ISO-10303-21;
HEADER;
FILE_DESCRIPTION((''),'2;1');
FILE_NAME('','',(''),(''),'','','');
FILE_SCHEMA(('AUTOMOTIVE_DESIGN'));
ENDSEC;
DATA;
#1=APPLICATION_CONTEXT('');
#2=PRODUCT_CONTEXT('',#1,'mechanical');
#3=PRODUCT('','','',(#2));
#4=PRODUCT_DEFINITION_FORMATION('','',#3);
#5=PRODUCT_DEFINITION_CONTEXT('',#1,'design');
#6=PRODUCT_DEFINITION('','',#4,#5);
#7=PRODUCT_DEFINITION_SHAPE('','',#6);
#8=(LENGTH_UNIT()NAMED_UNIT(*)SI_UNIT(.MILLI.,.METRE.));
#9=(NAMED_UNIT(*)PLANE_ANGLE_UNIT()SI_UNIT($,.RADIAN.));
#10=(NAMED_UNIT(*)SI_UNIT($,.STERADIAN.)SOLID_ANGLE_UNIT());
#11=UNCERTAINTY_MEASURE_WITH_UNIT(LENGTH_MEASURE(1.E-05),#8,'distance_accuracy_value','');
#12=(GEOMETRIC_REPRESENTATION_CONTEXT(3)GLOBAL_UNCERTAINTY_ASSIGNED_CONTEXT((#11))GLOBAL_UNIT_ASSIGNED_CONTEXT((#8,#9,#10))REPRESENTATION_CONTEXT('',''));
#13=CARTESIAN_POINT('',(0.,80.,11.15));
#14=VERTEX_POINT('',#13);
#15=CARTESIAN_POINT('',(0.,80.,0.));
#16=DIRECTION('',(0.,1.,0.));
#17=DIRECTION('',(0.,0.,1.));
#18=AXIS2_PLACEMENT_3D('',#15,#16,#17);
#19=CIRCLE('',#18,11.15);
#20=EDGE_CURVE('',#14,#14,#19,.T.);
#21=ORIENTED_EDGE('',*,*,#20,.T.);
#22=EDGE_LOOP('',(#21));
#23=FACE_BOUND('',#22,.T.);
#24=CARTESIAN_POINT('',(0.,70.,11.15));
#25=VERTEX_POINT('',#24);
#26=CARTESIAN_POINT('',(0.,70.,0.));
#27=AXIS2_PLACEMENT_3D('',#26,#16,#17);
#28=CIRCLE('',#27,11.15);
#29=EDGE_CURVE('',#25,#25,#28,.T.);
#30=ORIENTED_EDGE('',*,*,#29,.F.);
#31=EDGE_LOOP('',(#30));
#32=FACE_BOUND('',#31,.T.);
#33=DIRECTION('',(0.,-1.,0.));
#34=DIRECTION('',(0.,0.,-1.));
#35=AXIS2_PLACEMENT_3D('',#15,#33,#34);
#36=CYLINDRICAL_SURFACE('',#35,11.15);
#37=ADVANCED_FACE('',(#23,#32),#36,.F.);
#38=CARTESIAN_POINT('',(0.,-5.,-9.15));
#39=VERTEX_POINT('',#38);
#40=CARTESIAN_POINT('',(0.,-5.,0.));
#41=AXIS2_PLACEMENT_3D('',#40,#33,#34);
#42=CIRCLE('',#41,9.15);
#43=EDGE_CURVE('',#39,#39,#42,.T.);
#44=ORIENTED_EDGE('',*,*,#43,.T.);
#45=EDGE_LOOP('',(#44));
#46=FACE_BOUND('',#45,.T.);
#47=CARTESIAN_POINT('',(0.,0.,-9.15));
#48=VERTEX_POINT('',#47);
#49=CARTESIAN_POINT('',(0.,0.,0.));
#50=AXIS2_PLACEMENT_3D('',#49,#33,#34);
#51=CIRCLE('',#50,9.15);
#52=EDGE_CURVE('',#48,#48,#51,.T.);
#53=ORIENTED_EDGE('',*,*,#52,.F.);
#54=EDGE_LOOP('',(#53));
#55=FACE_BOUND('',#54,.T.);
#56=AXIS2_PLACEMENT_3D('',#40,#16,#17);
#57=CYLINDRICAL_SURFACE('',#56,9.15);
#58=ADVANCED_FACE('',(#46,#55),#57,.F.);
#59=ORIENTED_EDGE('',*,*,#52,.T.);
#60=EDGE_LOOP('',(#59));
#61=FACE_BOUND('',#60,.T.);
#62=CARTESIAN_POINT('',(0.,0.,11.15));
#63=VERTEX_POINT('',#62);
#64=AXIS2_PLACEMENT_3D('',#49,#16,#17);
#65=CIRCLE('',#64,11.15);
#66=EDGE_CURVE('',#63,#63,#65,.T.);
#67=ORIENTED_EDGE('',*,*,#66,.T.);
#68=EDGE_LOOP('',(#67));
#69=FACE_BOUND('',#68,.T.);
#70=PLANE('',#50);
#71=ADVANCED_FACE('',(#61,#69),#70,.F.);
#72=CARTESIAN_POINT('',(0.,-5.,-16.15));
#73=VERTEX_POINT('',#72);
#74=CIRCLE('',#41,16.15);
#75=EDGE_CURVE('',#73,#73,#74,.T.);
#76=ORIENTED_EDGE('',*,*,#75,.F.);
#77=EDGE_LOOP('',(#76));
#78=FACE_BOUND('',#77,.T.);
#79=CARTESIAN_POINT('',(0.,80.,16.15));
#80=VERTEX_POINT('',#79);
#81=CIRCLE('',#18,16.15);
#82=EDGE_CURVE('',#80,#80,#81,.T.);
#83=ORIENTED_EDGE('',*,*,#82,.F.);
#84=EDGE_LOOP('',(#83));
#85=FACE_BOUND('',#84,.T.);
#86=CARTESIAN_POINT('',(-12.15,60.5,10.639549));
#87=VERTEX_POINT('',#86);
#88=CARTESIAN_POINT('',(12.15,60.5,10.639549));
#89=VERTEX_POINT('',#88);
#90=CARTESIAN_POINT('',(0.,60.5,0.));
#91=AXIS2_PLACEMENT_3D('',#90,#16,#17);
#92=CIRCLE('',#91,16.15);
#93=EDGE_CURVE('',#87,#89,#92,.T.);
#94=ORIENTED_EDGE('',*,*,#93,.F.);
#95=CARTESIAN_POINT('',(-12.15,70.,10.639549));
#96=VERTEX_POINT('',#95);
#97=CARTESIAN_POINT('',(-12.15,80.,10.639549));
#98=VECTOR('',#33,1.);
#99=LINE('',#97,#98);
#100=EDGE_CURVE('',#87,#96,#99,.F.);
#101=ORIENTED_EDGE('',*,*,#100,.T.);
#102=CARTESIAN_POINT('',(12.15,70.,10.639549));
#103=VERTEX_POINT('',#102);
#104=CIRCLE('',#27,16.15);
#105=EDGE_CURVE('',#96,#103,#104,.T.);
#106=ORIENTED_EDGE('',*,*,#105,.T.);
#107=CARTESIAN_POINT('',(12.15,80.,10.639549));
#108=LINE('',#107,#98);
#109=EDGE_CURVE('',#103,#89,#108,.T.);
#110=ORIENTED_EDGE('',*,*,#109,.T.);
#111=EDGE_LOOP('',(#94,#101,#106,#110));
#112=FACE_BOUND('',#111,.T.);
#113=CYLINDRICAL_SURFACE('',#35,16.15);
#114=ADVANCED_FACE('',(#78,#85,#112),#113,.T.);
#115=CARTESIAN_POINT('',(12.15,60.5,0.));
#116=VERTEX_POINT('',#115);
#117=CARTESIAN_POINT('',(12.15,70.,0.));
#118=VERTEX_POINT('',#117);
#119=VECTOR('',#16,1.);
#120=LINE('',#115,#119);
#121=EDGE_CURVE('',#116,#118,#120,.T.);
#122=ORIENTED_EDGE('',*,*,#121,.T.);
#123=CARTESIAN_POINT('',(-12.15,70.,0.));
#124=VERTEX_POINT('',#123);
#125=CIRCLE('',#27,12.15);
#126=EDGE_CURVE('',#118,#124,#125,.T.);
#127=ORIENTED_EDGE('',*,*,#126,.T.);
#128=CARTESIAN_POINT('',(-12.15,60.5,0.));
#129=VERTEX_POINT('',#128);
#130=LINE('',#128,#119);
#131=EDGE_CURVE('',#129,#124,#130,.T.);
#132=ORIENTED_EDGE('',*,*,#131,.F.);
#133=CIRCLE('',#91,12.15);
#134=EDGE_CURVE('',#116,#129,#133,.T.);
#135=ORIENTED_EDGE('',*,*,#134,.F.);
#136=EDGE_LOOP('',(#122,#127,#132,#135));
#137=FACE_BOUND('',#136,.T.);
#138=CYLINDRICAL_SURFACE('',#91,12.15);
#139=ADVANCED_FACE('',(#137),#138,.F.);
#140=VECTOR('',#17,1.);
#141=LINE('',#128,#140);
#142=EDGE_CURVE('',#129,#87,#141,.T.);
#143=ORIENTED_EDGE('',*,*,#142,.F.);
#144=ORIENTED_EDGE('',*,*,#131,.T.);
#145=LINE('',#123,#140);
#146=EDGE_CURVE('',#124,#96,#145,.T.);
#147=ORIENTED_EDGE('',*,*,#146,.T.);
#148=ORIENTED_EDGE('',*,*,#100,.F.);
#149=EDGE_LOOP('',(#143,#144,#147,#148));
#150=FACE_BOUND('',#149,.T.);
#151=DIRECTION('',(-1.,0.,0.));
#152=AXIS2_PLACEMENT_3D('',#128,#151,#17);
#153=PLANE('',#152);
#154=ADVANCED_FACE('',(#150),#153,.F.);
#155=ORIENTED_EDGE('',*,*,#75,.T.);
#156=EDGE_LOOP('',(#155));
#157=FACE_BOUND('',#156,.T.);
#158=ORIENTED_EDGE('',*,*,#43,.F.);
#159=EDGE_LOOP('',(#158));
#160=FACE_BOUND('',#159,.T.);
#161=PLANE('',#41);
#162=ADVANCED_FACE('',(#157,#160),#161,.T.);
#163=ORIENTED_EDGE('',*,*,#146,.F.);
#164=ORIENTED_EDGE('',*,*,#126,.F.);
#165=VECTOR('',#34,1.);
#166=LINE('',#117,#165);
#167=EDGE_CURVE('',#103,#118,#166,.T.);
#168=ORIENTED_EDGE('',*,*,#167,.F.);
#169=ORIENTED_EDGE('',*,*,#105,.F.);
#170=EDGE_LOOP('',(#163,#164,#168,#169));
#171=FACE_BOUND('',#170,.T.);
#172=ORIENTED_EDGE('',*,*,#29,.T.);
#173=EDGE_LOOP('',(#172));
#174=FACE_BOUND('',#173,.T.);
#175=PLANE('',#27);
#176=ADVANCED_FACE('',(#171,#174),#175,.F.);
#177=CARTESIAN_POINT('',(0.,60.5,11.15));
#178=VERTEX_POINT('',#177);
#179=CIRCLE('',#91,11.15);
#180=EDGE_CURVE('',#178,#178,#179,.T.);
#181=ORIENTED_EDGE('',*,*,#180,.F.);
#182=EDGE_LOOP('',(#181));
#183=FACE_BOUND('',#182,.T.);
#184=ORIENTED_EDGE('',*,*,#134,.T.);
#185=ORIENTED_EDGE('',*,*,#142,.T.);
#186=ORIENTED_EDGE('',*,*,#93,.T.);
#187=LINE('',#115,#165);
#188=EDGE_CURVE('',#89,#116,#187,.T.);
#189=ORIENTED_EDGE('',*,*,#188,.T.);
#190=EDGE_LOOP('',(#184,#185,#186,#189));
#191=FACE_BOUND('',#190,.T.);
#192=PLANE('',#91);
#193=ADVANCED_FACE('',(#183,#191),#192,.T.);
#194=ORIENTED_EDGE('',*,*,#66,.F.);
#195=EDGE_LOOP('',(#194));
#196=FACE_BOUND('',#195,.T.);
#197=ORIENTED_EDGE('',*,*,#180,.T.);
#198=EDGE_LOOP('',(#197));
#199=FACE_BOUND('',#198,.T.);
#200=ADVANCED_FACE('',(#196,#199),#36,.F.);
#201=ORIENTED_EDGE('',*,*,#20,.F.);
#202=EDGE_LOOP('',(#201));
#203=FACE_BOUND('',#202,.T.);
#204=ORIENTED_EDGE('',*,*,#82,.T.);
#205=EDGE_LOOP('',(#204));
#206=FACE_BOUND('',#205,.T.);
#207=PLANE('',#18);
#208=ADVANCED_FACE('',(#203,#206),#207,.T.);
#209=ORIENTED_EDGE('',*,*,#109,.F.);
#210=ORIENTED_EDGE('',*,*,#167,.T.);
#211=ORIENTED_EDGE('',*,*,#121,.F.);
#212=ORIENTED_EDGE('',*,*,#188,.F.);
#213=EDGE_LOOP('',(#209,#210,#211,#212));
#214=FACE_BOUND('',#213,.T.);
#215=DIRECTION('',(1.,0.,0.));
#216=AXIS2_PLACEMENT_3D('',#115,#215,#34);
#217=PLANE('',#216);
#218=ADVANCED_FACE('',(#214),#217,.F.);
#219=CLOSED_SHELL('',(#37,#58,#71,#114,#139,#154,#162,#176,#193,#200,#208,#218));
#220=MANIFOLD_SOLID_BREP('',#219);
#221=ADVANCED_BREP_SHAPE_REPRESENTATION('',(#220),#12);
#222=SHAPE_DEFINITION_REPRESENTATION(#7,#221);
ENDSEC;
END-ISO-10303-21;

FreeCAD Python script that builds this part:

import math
import FreeCAD as App
import Part
import Sketcher
from FreeCAD import Vector
Q = App.Units.Quantity

doc = App.newDocument("Part")
body = doc.addObject("PartDesign::Body", "Body")

# Sketch on XZ plane
sketch1 = doc.addObject("Sketcher::SketchObject", "Sketch")
body.addObject(sketch1)
sketch1.AttachmentSupport = (doc.XZ_Plane, [""])
sketch1.MapMode = "FlatFace"
sketch1.addGeometry([
    Part.Circle(Vector(0, 0, 0), Vector(0, 0, 1), 16),
    Part.Circle(Vector(0, 0, 0), Vector(0, 0, 1), 11),
], False)
sketch1.addConstraint([
    Sketcher.Constraint("Coincident", 0, 3, -1, 1),
    Sketcher.Constraint("Coincident", 1, 3, -1, 1),
    Sketcher.Constraint("Diameter", 0, Q("32.3 mm")),
    Sketcher.Constraint("Diameter", 1, Q("22.3 mm")),
])
pad1 = doc.addObject("PartDesign::Pad", "Pad")
body.addObject(pad1)
pad1.Profile = sketch1
pad1.Length = 80
pad1.Reversed = True

# Sketch on XZ plane
sketch2 = doc.addObject("Sketcher::SketchObject", "Sketch001")
body.addObject(sketch2)
sketch2.AttachmentSupport = (doc.XZ_Plane, [""])
sketch2.MapMode = "FlatFace"
sketch2.AttachmentOffset = App.Placement(Vector(0, 0, 5), App.Rotation())
sketch2.addGeometry([
    Part.Circle(Vector(0, 0, 0), Vector(0, 0, 1), 16),
    Part.Circle(Vector(0, 0, 0), Vector(0, 0, 1), 9),
], False)
sketch2.addConstraint([
    Sketcher.Constraint("Coincident", 0, 3, -1, 1),
    Sketcher.Constraint("Coincident", 1, 3, -1, 1),
    Sketcher.Constraint("Diameter", 0, Q("32.3 mm")),
    Sketcher.Constraint("Diameter", 1, Q("18.3 mm")),
])
pad2 = doc.addObject("PartDesign::Pad", "Pad001")
body.addObject(pad2)
pad2.Profile = sketch2
pad2.Length = 5
pad2.Reversed = True

# Sketch on XZ plane
sketch3 = doc.addObject("Sketcher::SketchObject", "Sketch002")
body.addObject(sketch3)
sketch3.AttachmentSupport = (doc.XZ_Plane, [""])
sketch3.MapMode = "FlatFace"
sketch3.AttachmentOffset = App.Placement(Vector(0, 0, -70), App.Rotation())
sketch3.addGeometry([
    Part.LineSegment(Vector(-12, 0, 0), Vector(-12, 18, 0)),
    Part.LineSegment(Vector(-12, 18, 0), Vector(12, 18, 0)),
    Part.LineSegment(Vector(12, 18, 0), Vector(12, 0, 0)),
    Part.ArcOfCircle(Part.Circle(Vector(0, 0, 0), Vector(0, 0, 1), 12), math.radians(180), math.radians(360)),
], False)
sketch3.addConstraint([
    Sketcher.Constraint("Coincident", 0, 2, 1, 1),
    Sketcher.Constraint("Coincident", 1, 2, 2, 1),
    Sketcher.Constraint("Tangent", 2, 2, 3, 2),
    Sketcher.Constraint("Tangent", 3, 1, 0, 1),
    Sketcher.Constraint("Vertical", 0),
    Sketcher.Constraint("Horizontal", 1),
    Sketcher.Constraint("Vertical", 2),
    Sketcher.Constraint("Coincident", 3, 3, -1, 1),
    Sketcher.Constraint("Radius", 3, Q("12.15 mm")),
    Sketcher.Constraint("DistanceY", 0, 1, 0, 2, Q("18.126783 mm")),
])
pocket1 = doc.addObject("PartDesign::Pocket", "Pocket")
body.addObject(pocket1)
pocket1.Profile = sketch3
pocket1.Length = 9.5
pocket1.Reversed = True

doc.recompute()
